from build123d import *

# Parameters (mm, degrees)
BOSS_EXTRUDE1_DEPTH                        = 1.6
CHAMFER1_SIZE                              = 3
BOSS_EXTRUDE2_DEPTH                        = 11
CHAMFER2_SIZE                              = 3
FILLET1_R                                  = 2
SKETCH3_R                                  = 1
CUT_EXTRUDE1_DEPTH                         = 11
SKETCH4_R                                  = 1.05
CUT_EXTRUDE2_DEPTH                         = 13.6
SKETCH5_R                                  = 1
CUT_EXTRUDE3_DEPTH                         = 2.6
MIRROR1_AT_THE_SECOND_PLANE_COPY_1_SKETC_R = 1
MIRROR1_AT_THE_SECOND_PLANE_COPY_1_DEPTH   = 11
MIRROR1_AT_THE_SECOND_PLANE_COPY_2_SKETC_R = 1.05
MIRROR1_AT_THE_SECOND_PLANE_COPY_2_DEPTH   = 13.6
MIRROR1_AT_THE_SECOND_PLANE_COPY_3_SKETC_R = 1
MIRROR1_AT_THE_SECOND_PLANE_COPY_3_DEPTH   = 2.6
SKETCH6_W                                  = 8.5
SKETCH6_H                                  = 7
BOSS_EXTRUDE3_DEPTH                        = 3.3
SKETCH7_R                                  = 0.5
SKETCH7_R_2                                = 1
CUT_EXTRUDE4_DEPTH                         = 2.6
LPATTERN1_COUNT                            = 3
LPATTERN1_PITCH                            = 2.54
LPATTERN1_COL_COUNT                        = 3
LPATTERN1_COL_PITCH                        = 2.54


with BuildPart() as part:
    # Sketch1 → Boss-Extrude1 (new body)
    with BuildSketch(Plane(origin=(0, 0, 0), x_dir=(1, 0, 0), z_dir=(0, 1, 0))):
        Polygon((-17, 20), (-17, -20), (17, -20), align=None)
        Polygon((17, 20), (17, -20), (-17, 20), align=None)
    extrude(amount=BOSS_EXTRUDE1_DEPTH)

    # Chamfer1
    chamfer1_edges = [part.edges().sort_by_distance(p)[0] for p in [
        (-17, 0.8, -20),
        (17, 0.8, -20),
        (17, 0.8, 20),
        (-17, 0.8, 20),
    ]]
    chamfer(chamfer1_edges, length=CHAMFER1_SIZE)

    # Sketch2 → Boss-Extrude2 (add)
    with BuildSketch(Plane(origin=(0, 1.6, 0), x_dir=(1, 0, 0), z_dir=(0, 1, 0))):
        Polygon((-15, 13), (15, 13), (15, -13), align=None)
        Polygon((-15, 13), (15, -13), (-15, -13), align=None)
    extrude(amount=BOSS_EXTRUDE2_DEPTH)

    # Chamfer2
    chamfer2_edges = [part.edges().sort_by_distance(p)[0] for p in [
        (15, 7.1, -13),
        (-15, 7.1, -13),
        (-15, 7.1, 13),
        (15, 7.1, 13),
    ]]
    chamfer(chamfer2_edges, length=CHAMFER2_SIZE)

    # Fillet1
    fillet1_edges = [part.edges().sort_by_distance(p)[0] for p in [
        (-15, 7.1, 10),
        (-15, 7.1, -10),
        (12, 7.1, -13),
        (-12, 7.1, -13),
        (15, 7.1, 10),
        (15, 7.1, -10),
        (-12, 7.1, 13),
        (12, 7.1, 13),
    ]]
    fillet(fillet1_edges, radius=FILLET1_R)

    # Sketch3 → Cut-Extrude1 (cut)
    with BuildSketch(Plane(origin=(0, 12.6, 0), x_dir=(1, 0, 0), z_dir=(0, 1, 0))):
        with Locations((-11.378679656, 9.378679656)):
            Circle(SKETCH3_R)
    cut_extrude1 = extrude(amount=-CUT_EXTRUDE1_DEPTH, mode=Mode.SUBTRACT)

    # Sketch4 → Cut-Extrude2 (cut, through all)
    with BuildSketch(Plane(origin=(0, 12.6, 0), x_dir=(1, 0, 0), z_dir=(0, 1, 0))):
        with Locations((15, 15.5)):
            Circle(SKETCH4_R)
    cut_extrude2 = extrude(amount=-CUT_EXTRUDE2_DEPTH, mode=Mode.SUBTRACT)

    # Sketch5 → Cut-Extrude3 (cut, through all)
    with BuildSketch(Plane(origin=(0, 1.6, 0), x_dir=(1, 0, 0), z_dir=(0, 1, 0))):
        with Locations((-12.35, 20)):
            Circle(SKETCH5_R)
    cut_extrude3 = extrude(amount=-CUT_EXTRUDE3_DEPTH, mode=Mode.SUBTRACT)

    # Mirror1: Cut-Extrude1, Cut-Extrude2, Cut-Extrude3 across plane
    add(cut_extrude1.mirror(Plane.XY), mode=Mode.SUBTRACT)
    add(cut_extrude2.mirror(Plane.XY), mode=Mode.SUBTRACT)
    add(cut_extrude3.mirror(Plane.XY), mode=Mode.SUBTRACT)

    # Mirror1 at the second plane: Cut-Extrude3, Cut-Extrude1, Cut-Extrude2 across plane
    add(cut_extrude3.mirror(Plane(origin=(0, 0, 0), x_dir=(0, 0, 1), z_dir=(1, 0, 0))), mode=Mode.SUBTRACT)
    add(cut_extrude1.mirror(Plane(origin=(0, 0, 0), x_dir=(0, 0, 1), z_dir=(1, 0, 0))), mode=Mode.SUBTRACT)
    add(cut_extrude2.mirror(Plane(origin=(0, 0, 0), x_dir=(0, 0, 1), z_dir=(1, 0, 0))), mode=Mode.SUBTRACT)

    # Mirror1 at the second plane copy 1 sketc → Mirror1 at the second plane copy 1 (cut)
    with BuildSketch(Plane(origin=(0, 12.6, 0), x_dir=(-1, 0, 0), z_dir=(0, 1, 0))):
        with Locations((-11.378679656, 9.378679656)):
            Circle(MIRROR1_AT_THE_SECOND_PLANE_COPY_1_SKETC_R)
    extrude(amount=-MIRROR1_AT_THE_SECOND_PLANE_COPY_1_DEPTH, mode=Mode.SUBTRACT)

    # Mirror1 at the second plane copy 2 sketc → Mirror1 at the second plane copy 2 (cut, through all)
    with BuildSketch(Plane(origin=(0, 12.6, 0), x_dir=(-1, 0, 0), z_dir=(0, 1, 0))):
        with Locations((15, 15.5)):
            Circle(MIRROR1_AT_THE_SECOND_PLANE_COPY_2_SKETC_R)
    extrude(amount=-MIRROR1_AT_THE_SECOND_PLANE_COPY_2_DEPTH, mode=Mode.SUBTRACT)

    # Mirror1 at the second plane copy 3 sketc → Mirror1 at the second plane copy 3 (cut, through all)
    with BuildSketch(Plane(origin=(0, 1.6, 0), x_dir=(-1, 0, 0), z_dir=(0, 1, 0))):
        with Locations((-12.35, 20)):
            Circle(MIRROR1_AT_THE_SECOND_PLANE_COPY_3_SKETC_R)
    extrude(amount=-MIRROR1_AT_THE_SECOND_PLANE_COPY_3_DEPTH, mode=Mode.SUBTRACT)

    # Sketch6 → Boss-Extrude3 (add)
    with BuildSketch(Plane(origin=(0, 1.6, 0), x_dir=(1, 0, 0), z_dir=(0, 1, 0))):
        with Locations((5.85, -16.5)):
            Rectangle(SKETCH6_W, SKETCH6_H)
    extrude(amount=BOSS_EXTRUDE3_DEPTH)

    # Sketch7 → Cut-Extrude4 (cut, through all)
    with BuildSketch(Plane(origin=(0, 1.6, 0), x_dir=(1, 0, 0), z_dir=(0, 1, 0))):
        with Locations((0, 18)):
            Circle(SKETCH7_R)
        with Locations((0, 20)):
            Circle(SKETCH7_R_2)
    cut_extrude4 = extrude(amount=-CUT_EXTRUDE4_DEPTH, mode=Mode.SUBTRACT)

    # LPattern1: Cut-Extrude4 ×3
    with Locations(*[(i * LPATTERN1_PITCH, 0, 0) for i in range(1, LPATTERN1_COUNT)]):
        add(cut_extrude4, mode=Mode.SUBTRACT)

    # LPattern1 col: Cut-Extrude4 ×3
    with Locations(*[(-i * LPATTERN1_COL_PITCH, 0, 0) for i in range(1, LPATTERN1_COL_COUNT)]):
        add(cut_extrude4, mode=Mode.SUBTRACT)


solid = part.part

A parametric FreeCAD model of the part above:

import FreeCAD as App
import Part
import Sketcher


def edges_at(feature, points):
    """Names of the edges that pass closest to the given points."""
    edges = feature.Shape.Edges
    near = lambda p: min(range(len(edges)), key=lambda i: edges[i].distToShape(Part.Vertex(*p))[0])
    return sorted({f"Edge{near(p) + 1}" for p in points})

doc = App.newDocument("Part")
body = doc.addObject("PartDesign::Body", "Body")

sketch1 = doc.addObject("Sketcher::SketchObject", "Sketch")
body.addObject(sketch1)
sketch1.AttachmentSupport = (doc.XZ_Plane, [""])
sketch1.MapMode = "FlatFace"
sketch1.addGeometry([
    Part.LineSegment(App.Vector(-17, -20, 0), App.Vector(-17, 20, 0)),
    Part.LineSegment(App.Vector(-17, 20, 0), App.Vector(17, 20, 0)),
    Part.LineSegment(App.Vector(17, 20, 0), App.Vector(17, -20, 0)),
    Part.LineSegment(App.Vector(17, -20, 0), App.Vector(-17, -20, 0)),
], False)
sketch1.addConstraint([
    Sketcher.Constraint("Coincident", 0, 2, 1, 1),
    Sketcher.Constraint("Coincident", 1, 2, 2, 1),
    Sketcher.Constraint("Coincident", 2, 2, 3, 1),
    Sketcher.Constraint("Coincident", 3, 2, 0, 1),
    Sketcher.Constraint("Vertical", 0),
    Sketcher.Constraint("Horizontal", 1),
    Sketcher.Constraint("Vertical", 2),
    Sketcher.Constraint("Horizontal", 3),
    Sketcher.Constraint("Symmetric", 0, 2, 2, 2, -1, 1),
    Sketcher.Constraint("DistanceX", 1, 1, 1, 2, 34.0),
    Sketcher.Constraint("DistanceY", 0, 1, 0, 2, 40.0),
])
pad1 = doc.addObject("PartDesign::Pad", "Pad")
body.addObject(pad1)
pad1.Profile = sketch1
pad1.Length = 1.6
pad1.Reversed = True
doc.recompute()

chamfer = doc.addObject("PartDesign::Chamfer", "Chamfer")
body.addObject(chamfer)
chamfer.Base = (pad1, edges_at(pad1, [
    (-17, 0.8, -20),
    (17, 0.8, -20),
    (17, 0.8, 20),
    (-17, 0.8, 20),
]))
chamfer.Size = 3

sketch2 = doc.addObject("Sketcher::SketchObject", "Sketch001")
body.addObject(sketch2)
sketch2.AttachmentSupport = (doc.XZ_Plane, [""])
sketch2.MapMode = "FlatFace"
sketch2.AttachmentOffset = App.Placement(App.Vector(0, 0, -1.6), App.Rotation())
sketch2.addGeometry([
    Part.LineSegment(App.Vector(15, -13, 0), App.Vector(-15, -13, 0)),
    Part.LineSegment(App.Vector(-15, -13, 0), App.Vector(-15, 13, 0)),
    Part.LineSegment(App.Vector(-15, 13, 0), App.Vector(15, 13, 0)),
    Part.LineSegment(App.Vector(15, 13, 0), App.Vector(15, -13, 0)),
], False)
sketch2.addConstraint([
    Sketcher.Constraint("Coincident", 0, 2, 1, 1),
    Sketcher.Constraint("Coincident", 1, 2, 2, 1),
    Sketcher.Constraint("Coincident", 2, 2, 3, 1),
    Sketcher.Constraint("Coincident", 3, 2, 0, 1),
    Sketcher.Constraint("Horizontal", 0),
    Sketcher.Constraint("Vertical", 1),
    Sketcher.Constraint("Horizontal", 2),
    Sketcher.Constraint("Vertical", 3),
    Sketcher.Constraint("Symmetric", 0, 2, 2, 2, -1, 1),
    Sketcher.Constraint("DistanceX", 0, 2, 0, 1, 30.0),
    Sketcher.Constraint("DistanceY", 1, 1, 1, 2, 26.0),
])
pad2 = doc.addObject("PartDesign::Pad", "Pad001")
body.addObject(pad2)
pad2.Profile = sketch2
pad2.Length = 11
pad2.Reversed = True
doc.recompute()

chamfer2 = doc.addObject("PartDesign::Chamfer", "Chamfer001")
body.addObject(chamfer2)
chamfer2.Base = (pad2, edges_at(pad2, [
    (15, 7.1, -13),
    (-15, 7.1, -13),
    (-15, 7.1, 13),
    (15, 7.1, 13),
]))
chamfer2.Size = 3
doc.recompute()

fillet = doc.addObject("PartDesign::Fillet", "Fillet")
body.addObject(fillet)
fillet.Base = (chamfer2, edges_at(chamfer2, [
    (-15, 7.1, 10),
    (-15, 7.1, -10),
    (12, 7.1, -13),
    (-12, 7.1, -13),
    (15, 7.1, 10),
    (15, 7.1, -10),
    (-12, 7.1, 13),
    (12, 7.1, 13),
]))
fillet.Radius = 2

sketch3 = doc.addObject("Sketcher::SketchObject", "Sketch002")
body.addObject(sketch3)
sketch3.AttachmentSupport = (doc.XZ_Plane, [""])
sketch3.MapMode = "FlatFace"
sketch3.AttachmentOffset = App.Placement(App.Vector(0, 0, -12.6), App.Rotation())
sketch3.addGeometry(Part.Circle(App.Vector(-11.37868, -9.37868, 0), App.Vector(0, 0, 1), 1), False)
sketch3.addConstraint([
    Sketcher.Constraint("Diameter", 0, 2.0),
    Sketcher.Constraint("DistanceX", 0, 3, -1, 1, 11.37868),
    Sketcher.Constraint("DistanceY", 0, 3, -1, 1, 9.37868),
])
pocket1 = doc.addObject("PartDesign::Pocket", "Pocket")
body.addObject(pocket1)
pocket1.Profile = sketch3
pocket1.Length = 11
pocket1.Reversed = True

sketch4 = doc.addObject("Sketcher::SketchObject", "Sketch003")
body.addObject(sketch4)
sketch4.AttachmentSupport = (doc.XZ_Plane, [""])
sketch4.MapMode = "FlatFace"
sketch4.AttachmentOffset = App.Placement(App.Vector(0, 0, -12.6), App.Rotation())
sketch4.addGeometry(Part.Circle(App.Vector(15, -15.5, 0), App.Vector(0, 0, 1), 1.05), False)
sketch4.addConstraint([
    Sketcher.Constraint("Diameter", 0, 2.1),
    Sketcher.Constraint("DistanceX", -1, 1, 0, 3, 15.0),
    Sketcher.Constraint("DistanceY", 0, 3, -1, 1, 15.5),
])
pocket2 = doc.addObject("PartDesign::Pocket", "Pocket001")
body.addObject(pocket2)
pocket2.Profile = sketch4
pocket2.Type = "ThroughAll"
pocket2.Reversed = True

sketch5 = doc.addObject("Sketcher::SketchObject", "Sketch004")
body.addObject(sketch5)
sketch5.AttachmentSupport = (doc.XZ_Plane, [""])
sketch5.MapMode = "FlatFace"
sketch5.AttachmentOffset = App.Placement(App.Vector(0, 0, -1.6), App.Rotation())
sketch5.addGeometry(Part.Circle(App.Vector(-12.35, -20, 0), App.Vector(0, 0, 1), 1), False)
sketch5.addConstraint([
    Sketcher.Constraint("Diameter", 0, 2.0),
    Sketcher.Constraint("DistanceY", 0, 3, -1, 1, 20.0),
    Sketcher.Constraint("DistanceX", 0, 3, -1, 1, 12.35),
])
pocket3 = doc.addObject("PartDesign::Pocket", "Pocket002")
body.addObject(pocket3)
pocket3.Profile = sketch5
pocket3.Type = "ThroughAll"
pocket3.Reversed = True
doc.recompute()

mirrored = doc.addObject("PartDesign::Mirrored", "Mirrored")
body.addObject(mirrored)
mirrored.Originals = [pocket1, pocket2, pocket3]
mirrored.MirrorPlane = (doc.XY_Plane, [""])
body.Tip = mirrored
doc.recompute()

mirrored2 = doc.addObject("PartDesign::Mirrored", "Mirrored001")
body.addObject(mirrored2)
mirrored2.Originals = [pocket3, pocket1, pocket2]
mirrored2.MirrorPlane = (doc.YZ_Plane, [""])
body.Tip = mirrored2

sketch6 = doc.addObject("Sketcher::SketchObject", "Sketch005")
body.addObject(sketch6)
sketch6.AttachmentSupport = (doc.XZ_Plane, [""])
sketch6.MapMode = "FlatFace"
sketch6.AttachmentOffset = App.Placement(App.Vector(0, 0, -12.6), App.Rotation())
sketch6.addGeometry(Part.Circle(App.Vector(11.37868, 9.37868, 0), App.Vector(0, 0, 1), 1), False)
sketch6.addConstraint([
    Sketcher.Constraint("Diameter", 0, 2.0),
    Sketcher.Constraint("DistanceX", -1, 1, 0, 3, 11.37868),
    Sketcher.Constraint("DistanceY", -1, 1, 0, 3, 9.37868),
])
pocket4 = doc.addObject("PartDesign::Pocket", "Pocket003")
body.addObject(pocket4)
pocket4.Profile = sketch6
pocket4.Length = 11
pocket4.Reversed = True

sketch7 = doc.addObject("Sketcher::SketchObject", "Sketch006")
body.addObject(sketch7)
sketch7.AttachmentSupport = (doc.XZ_Plane, [""])
sketch7.MapMode = "FlatFace"
sketch7.AttachmentOffset = App.Placement(App.Vector(0, 0, -12.6), App.Rotation())
sketch7.addGeometry(Part.Circle(App.Vector(-15, 15.5, 0), App.Vector(0, 0, 1), 1.05), False)
sketch7.addConstraint([
    Sketcher.Constraint("Diameter", 0, 2.1),
    Sketcher.Constraint("DistanceX", 0, 3, -1, 1, 15.0),
    Sketcher.Constraint("DistanceY", -1, 1, 0, 3, 15.5),
])
pocket5 = doc.addObject("PartDesign::Pocket", "Pocket004")
body.addObject(pocket5)
pocket5.Profile = sketch7
pocket5.Type = "ThroughAll"
pocket5.Reversed = True

sketch8 = doc.addObject("Sketcher::SketchObject", "Sketch007")
body.addObject(sketch8)
sketch8.AttachmentSupport = (doc.XZ_Plane, [""])
sketch8.MapMode = "FlatFace"
sketch8.AttachmentOffset = App.Placement(App.Vector(0, 0, -1.6), App.Rotation())
sketch8.addGeometry(Part.Circle(App.Vector(12.35, 20, 0), App.Vector(0, 0, 1), 1), False)
sketch8.addConstraint([
    Sketcher.Constraint("Diameter", 0, 2.0),
    Sketcher.Constraint("DistanceY", -1, 1, 0, 3, 20.0),
    Sketcher.Constraint("DistanceX", -1, 1, 0, 3, 12.35),
])
pocket6 = doc.addObject("PartDesign::Pocket", "Pocket005")
body.addObject(pocket6)
pocket6.Profile = sketch8
pocket6.Type = "ThroughAll"
pocket6.Reversed = True

sketch9 = doc.addObject("Sketcher::SketchObject", "Sketch008")
body.addObject(sketch9)
sketch9.AttachmentSupport = (doc.XZ_Plane, [""])
sketch9.MapMode = "FlatFace"
sketch9.AttachmentOffset = App.Placement(App.Vector(0, 0, -1.6), App.Rotation())
sketch9.addGeometry([
    Part.LineSegment(App.Vector(1.6, 13, 0), App.Vector(1.6, 20, 0)),
    Part.LineSegment(App.Vector(1.6, 20, 0), App.Vector(10.1, 20, 0)),
    Part.LineSegment(App.Vector(10.1, 20, 0), App.Vector(10.1, 13, 0)),
    Part.LineSegment(App.Vector(10.1, 13, 0), App.Vector(1.6, 13, 0)),
], False)
sketch9.addConstraint([
    Sketcher.Constraint("Coincident", 0, 2, 1, 1),
    Sketcher.Constraint("Coincident", 1, 2, 2, 1),
    Sketcher.Constraint("Coincident", 2, 2, 3, 1),
    Sketcher.Constraint("Coincident", 3, 2, 0, 1),
    Sketcher.Constraint("Vertical", 0),
    Sketcher.Constraint("Horizontal", 1),
    Sketcher.Constraint("Vertical", 2),
    Sketcher.Constraint("Horizontal", 3),
    Sketcher.Constraint("DistanceY", 0, 1, 0, 2, 7.0),
    Sketcher.Constraint("DistanceX", 1, 1, 1, 2, 8.5),
    Sketcher.Constraint("DistanceY", -1, 1, 0, 2, 20.0),
    Sketcher.Constraint("DistanceX", -1, 1, 0, 2, 1.6),
])
pad3 = doc.addObject("PartDesign::Pad", "Pad002")
body.addObject(pad3)
pad3.Profile = sketch9
pad3.Length = 3.3
pad3.Reversed = True

sketch10 = doc.addObject("Sketcher::SketchObject", "Sketch009")
body.addObject(sketch10)
sketch10.AttachmentSupport = (doc.XZ_Plane, [""])
sketch10.MapMode = "FlatFace"
sketch10.AttachmentOffset = App.Placement(App.Vector(0, 0, -1.6), App.Rotation())
sketch10.addGeometry([
    Part.Circle(App.Vector(0, -18, 0), App.Vector(0, 0, 1), 0.5),
    Part.Circle(App.Vector(0, -20, 0), App.Vector(0, 0, 1), 1),
], False)
sketch10.addConstraint([
    Sketcher.Constraint("PointOnObject", 0, 3, -2),
    Sketcher.Constraint("PointOnObject", 1, 3, -2),
    Sketcher.Constraint("Diameter", 0, 1.0),
    Sketcher.Constraint("Diameter", 1, 2.0),
    Sketcher.Constraint("DistanceY", 0, 3, -1, 1, 18.0),
    Sketcher.Constraint("DistanceY", 1, 3, -1, 1, 20.0),
])
pocket7 = doc.addObject("PartDesign::Pocket", "Pocket006")
body.addObject(pocket7)
pocket7.Profile = sketch10
pocket7.Type = "ThroughAll"
pocket7.Reversed = True
doc.recompute()

linearpattern = doc.addObject("PartDesign::LinearPattern", "LinearPattern")
body.addObject(linearpattern)
linearpattern.Originals = [pocket7]
linearpattern.Direction = (doc.X_Axis, [""])
linearpattern.Mode = "offset"
linearpattern.Offset = 2.54
linearpattern.Occurrences = 3
body.Tip = linearpattern
doc.recompute()

linearpattern2 = doc.addObject("PartDesign::LinearPattern", "LinearPattern001")
body.addObject(linearpattern2)
linearpattern2.Originals = [pocket7]
linearpattern2.Direction = (doc.X_Axis, [""])
linearpattern2.Mode = "offset"
linearpattern2.Offset = 2.54
linearpattern2.Occurrences = 3
linearpattern2.Reversed = True
body.Tip = linearpattern2

doc.recompute()
